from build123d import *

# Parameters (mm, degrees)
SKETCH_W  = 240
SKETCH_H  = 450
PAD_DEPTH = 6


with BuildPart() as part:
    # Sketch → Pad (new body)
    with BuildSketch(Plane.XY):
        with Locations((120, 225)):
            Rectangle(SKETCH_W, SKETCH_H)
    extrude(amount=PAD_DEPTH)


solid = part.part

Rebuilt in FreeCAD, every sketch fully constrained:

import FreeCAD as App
import Part
import Sketcher
Q = App.Units.Quantity

doc = App.newDocument("Part")
body = doc.addObject("PartDesign::Body", "Body")

# Sketch on XY plane
sketch1 = body.newObject("Sketcher::SketchObject", "Sketch")
sketch1.AttachmentSupport = (doc.getObject("XY_Plane"), [""])
sketch1.MapMode = "FlatFace"
sketch1.addGeometry([
    Part.LineSegment(App.Vector(0, 450, 0), App.Vector(0, 0, 0)),
    Part.LineSegment(App.Vector(0, 0, 0), App.Vector(240, 0, 0)),
    Part.LineSegment(App.Vector(240, 0, 0), App.Vector(240, 450, 0)),
    Part.LineSegment(App.Vector(240, 450, 0), App.Vector(0, 450, 0)),
], False)
sketch1.addConstraint([
    Sketcher.Constraint("Coincident", 0, 2, 1, 1),
    Sketcher.Constraint("Coincident", 1, 2, 2, 1),
    Sketcher.Constraint("Coincident", 2, 2, 3, 1),
    Sketcher.Constraint("Coincident", 3, 2, 0, 1),
    Sketcher.Constraint("Vertical", 0),
    Sketcher.Constraint("Horizontal", 1),
    Sketcher.Constraint("Vertical", 2),
    Sketcher.Constraint("Horizontal", 3),
    Sketcher.Constraint("Coincident", 0, 2, -1, 1),
    Sketcher.Constraint("DistanceX", 1, 1, 1, 2, Q("240 mm")),
    Sketcher.Constraint("DistanceY", 0, 2, 0, 1, Q("450 mm")),
])
pad1 = body.newObject("PartDesign::Pad", "Pad")
pad1.Profile = sketch1
pad1.Length = 6

doc.recompute()
